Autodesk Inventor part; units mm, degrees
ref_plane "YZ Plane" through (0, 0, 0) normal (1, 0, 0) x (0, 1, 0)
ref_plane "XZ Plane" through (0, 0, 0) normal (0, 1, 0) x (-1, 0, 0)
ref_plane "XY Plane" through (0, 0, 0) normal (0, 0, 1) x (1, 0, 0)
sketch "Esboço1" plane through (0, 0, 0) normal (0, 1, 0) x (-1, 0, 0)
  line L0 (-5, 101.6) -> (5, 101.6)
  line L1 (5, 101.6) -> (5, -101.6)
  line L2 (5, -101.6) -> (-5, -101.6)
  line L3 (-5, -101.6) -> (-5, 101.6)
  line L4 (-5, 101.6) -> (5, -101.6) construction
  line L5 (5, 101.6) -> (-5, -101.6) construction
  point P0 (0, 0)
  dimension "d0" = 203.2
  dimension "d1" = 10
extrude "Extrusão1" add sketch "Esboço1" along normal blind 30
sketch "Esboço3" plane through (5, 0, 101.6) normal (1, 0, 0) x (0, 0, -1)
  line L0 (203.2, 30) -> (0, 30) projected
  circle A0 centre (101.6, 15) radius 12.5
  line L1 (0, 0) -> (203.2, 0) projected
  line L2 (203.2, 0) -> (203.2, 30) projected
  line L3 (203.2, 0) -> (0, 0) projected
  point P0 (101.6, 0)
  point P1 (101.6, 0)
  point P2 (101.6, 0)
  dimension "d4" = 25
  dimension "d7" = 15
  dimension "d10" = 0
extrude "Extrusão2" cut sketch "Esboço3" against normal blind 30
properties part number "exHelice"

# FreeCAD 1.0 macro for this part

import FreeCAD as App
import Part
import Sketcher
Q = App.Units.Quantity

doc = App.newDocument("Part")
body = doc.addObject("PartDesign::Body", "Body")

# Sketch on XZ plane
sketch1 = doc.addObject("Sketcher::SketchObject", "Sketch")
body.addObject(sketch1)
sketch1.AttachmentSupport = (doc.XZ_Plane, [""])
sketch1.MapMode = "FlatFace"
sketch1.addGeometry(Part.LineSegment(App.Vector(-5, 102, 0), App.Vector(5, 102, 0)), False)
sketch1.addGeometry(Part.LineSegment(App.Vector(5, 102, 0), App.Vector(5, -102, 0)), False)
sketch1.addGeometry(Part.LineSegment(App.Vector(5, -102, 0), App.Vector(-5, -102, 0)), False)
sketch1.addGeometry(Part.LineSegment(App.Vector(-5, -102, 0), App.Vector(-5, 102, 0)), False)
sketch1.addConstraint(Sketcher.Constraint("Coincident", 0, 2, 1, 1))
sketch1.addConstraint(Sketcher.Constraint("Coincident", 1, 2, 2, 1))
sketch1.addConstraint(Sketcher.Constraint("Coincident", 2, 2, 3, 1))
sketch1.addConstraint(Sketcher.Constraint("Coincident", 3, 2, 0, 1))
sketch1.addConstraint(Sketcher.Constraint("Horizontal", 0))
sketch1.addConstraint(Sketcher.Constraint("Vertical", 1))
sketch1.addConstraint(Sketcher.Constraint("Horizontal", 2))
sketch1.addConstraint(Sketcher.Constraint("Vertical", 3))
sketch1.addConstraint(Sketcher.Constraint("Symmetric", 0, 2, 2, 2, -1, 1))
sketch1.addConstraint(Sketcher.Constraint("DistanceX", 0, 1, 0, 2, Q("10 mm")))
sketch1.addConstraint(Sketcher.Constraint("DistanceY", 1, 2, 1, 1, Q("203.2 mm")))
pad1 = doc.addObject("PartDesign::Pad", "Pad")
body.addObject(pad1)
pad1.Profile = sketch1
pad1.Length = 30
pad1.Reversed = True

# Sketch on YZ plane
sketch2 = doc.addObject("Sketcher::SketchObject", "Sketch001")
body.addObject(sketch2)
sketch2.AttachmentSupport = (doc.YZ_Plane, [""])
sketch2.MapMode = "FlatFace"
sketch2.AttachmentOffset = App.Placement(App.Vector(0, 0, 5), App.Rotation())
sketch2.addGeometry(Part.Circle(App.Vector(15, 0, 0), App.Vector(0, 0, 1), 12), False)
sketch2.addConstraint(Sketcher.Constraint("PointOnObject", 0, 3, -1))
sketch2.addConstraint(Sketcher.Constraint("Diameter", 0, Q("25 mm")))
sketch2.addConstraint(Sketcher.Constraint("DistanceX", -1, 1, 0, 3, Q("15 mm")))
pocket1 = doc.addObject("PartDesign::Pocket", "Pocket")
body.addObject(pocket1)
pocket1.Profile = sketch2
pocket1.Length = 30

doc.recompute()
